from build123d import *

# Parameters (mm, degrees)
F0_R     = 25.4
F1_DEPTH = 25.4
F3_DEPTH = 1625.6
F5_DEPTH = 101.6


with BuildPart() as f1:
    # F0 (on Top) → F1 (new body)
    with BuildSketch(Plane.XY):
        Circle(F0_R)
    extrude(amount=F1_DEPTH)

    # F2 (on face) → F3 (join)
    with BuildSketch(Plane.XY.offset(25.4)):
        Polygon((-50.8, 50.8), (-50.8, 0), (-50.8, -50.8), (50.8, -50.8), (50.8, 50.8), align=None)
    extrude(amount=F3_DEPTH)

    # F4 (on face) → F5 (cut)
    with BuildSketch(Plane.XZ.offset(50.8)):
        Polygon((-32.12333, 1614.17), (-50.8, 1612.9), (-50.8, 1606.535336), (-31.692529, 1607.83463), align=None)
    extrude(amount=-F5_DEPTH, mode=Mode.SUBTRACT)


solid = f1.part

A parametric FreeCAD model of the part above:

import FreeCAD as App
import Part
import Sketcher
Q = App.Units.Quantity

doc = App.newDocument("Part")
params = doc.addObject("Spreadsheet::Sheet", "Params")
for row, (alias, value) in enumerate([
    ("sketch1_diameter", "2 in"),
    ("pad1_length", "1 in"),
    ("sketch2_width", "4 in"),
    ("pad2_length", "64 in"),
    ("sketch3_length", "0.25 in"),
    ("sketch3_length2", "0.737 in"),
    ("pocket1_length", "4 in"),
], start=1):
    params.set(f"A{row}", alias)
    params.set(f"B{row}", "=" + value)
    params.setAlias(f"B{row}", alias)

body = doc.addObject("PartDesign::Body", "Body")

# Sketch on XY plane
sketch1 = body.newObject("Sketcher::SketchObject", "Sketch")
sketch1.AttachmentSupport = (doc.getObject("XY_Plane"), [""])
sketch1.MapMode = "FlatFace"
sketch1.addGeometry(Part.Circle(App.Vector(0, 0, 0), App.Vector(0, 0, 1), 25), False)
sketch1.addConstraint(Sketcher.Constraint("Coincident", 0, 3, -1, 1))
sketch1.addConstraint(Sketcher.Constraint("Diameter", 0, Q("2 in")))
sketch1.setExpression("Constraints[1]", "Params.sketch1_diameter")
pad1 = body.newObject("PartDesign::Pad", "Pad")
pad1.Profile = sketch1
pad1.setExpression("Length", "Params.pad1_length")

# Sketch on XY plane
sketch2 = body.newObject("Sketcher::SketchObject", "Sketch001")
sketch2.AttachmentSupport = (doc.getObject("XY_Plane"), [""])
sketch2.MapMode = "FlatFace"
sketch2.AttachmentOffset = App.Placement(App.Vector(0, 0, 1 * 25.4), App.Rotation())
sketch2.addGeometry(Part.LineSegment(App.Vector(-51, 51, 0), App.Vector(-51, -51, 0)), False)
sketch2.addGeometry(Part.LineSegment(App.Vector(-51, -51, 0), App.Vector(51, -51, 0)), False)
sketch2.addGeometry(Part.LineSegment(App.Vector(51, -51, 0), App.Vector(51, 51, 0)), False)
sketch2.addGeometry(Part.LineSegment(App.Vector(51, 51, 0), App.Vector(-51, 51, 0)), False)
sketch2.addConstraint(Sketcher.Constraint("Coincident", 0, 2, 1, 1))
sketch2.addConstraint(Sketcher.Constraint("Coincident", 1, 2, 2, 1))
sketch2.addConstraint(Sketcher.Constraint("Coincident", 2, 2, 3, 1))
sketch2.addConstraint(Sketcher.Constraint("Coincident", 3, 2, 0, 1))
sketch2.addConstraint(Sketcher.Constraint("Vertical", 0))
sketch2.addConstraint(Sketcher.Constraint("Horizontal", 1))
sketch2.addConstraint(Sketcher.Constraint("Vertical", 2))
sketch2.addConstraint(Sketcher.Constraint("Horizontal", 3))
sketch2.addConstraint(Sketcher.Constraint("Symmetric", 0, 2, 2, 2, -1, 1))
sketch2.addConstraint(Sketcher.Constraint("Equal", 3, 0))
sketch2.addConstraint(Sketcher.Constraint("DistanceX", 1, 1, 1, 2, Q("4 in")))
sketch2.setExpression("Constraints[10]", "Params.sketch2_width")
pad2 = body.newObject("PartDesign::Pad", "Pad001")
pad2.Profile = sketch2
pad2.setExpression("Length", "Params.pad2_length")

# Sketch on XZ plane
sketch3 = body.newObject("Sketcher::SketchObject", "Sketch002")
sketch3.AttachmentSupport = (doc.getObject("XZ_Plane"), [""])
sketch3.MapMode = "FlatFace"
sketch3.AttachmentOffset = App.Placement(App.Vector(0, 0, 2 * 25.4), App.Rotation())
sketch3.addGeometry(Part.LineSegment(App.Vector(-32, 1614, 0), App.Vector(-51, 1613, 0)), False)
sketch3.addGeometry(Part.LineSegment(App.Vector(-51, 1613, 0), App.Vector(-51, 1607, 0)), False)
sketch3.addGeometry(Part.LineSegment(App.Vector(-51, 1607, 0), App.Vector(-32, 1608, 0)), False)
sketch3.addGeometry(Part.LineSegment(App.Vector(-32, 1608, 0), App.Vector(-32, 1614, 0)), False)
sketch3.addConstraint(Sketcher.Constraint("Coincident", 0, 2, 1, 1))
sketch3.addConstraint(Sketcher.Constraint("Coincident", 1, 2, 2, 1))
sketch3.addConstraint(Sketcher.Constraint("Coincident", 2, 2, 3, 1))
sketch3.addConstraint(Sketcher.Constraint("Coincident", 3, 2, 0, 1))
sketch3.addConstraint(Sketcher.Constraint("Vertical", 1))
sketch3.addConstraint(Sketcher.Constraint("Parallel", 0, 2))
sketch3.addConstraint(Sketcher.Constraint("Perpendicular", 2, 3))
sketch3.addConstraint(Sketcher.Constraint("DistanceX", 0, 2, -1, 1, Q("2 in")))
sketch3.addConstraint(Sketcher.Constraint("DistanceY", -1, 1, 0, 2, Q("63.5 in")))
sketch3.addConstraint(Sketcher.Constraint("Distance", 3, Q("0.25 in")))
sketch3.addConstraint(Sketcher.Constraint("DistanceY", -1, 1, 3, 2, Q("63.55 in")))
sketch3.addConstraint(Sketcher.Constraint("Distance", 0, Q("0.737 in")))
sketch3.setExpression("Constraints[9]", "Params.sketch3_length")
sketch3.setExpression("Constraints[11]", "Params.sketch3_length2")
pocket1 = body.newObject("PartDesign::Pocket", "Pocket")
pocket1.Profile = sketch3
pocket1.setExpression("Length", "Params.pocket1_length")

doc.recompute()
